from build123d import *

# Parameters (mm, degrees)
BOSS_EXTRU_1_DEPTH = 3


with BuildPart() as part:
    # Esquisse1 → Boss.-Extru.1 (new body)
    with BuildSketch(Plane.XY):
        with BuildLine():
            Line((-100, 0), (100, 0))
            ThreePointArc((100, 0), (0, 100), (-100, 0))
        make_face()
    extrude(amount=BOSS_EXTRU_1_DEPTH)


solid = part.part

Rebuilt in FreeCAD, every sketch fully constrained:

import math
import FreeCAD as App
import Part
import Sketcher

V = App.Vector

doc = App.newDocument("Part")
params = doc.addObject("Spreadsheet::Sheet", "Params")
for row, (alias, value) in enumerate([
    ("sketch1_radius", "100 mm"),
    ("pad1_length", "3 mm"),
], start=1):
    params.set(f"A{row}", alias)
    params.set(f"B{row}", "=" + value)
    params.setAlias(f"B{row}", alias)

body = doc.addObject("PartDesign::Body", "Body")

sketch1 = body.newObject("Sketcher::SketchObject", "Sketch")
sketch1.AttachmentSupport = (doc.getObject("XY_Plane"), [""])
sketch1.MapMode = "FlatFace"
sketch1.addGeometry([
    Part.LineSegment(V(-100, 0, 0), V(100, 0, 0)),
    Part.ArcOfCircle(Part.Circle(V(0, 0, 0), V(0, 0, 1), 100), math.radians(0), math.radians(180)),
], False)
sketch1.addConstraint([
    Sketcher.Constraint("Coincident", 0, 1, 1, 2),
    Sketcher.Constraint("Coincident", 1, 1, 0, 2),
    Sketcher.Constraint("Horizontal", 0),
    Sketcher.Constraint("Coincident", 1, 3, -1, 1),
    Sketcher.Constraint("PointOnObject", 0, 1, -1),
    Sketcher.Constraint("Radius", 1, 100.0),
])
sketch1.setExpression("Constraints[5]", "Params.sketch1_radius")
pad1 = body.newObject("PartDesign::Pad", "Pad")
pad1.Profile = sketch1
pad1.setExpression("Length", "Params.pad1_length")

doc.recompute()
